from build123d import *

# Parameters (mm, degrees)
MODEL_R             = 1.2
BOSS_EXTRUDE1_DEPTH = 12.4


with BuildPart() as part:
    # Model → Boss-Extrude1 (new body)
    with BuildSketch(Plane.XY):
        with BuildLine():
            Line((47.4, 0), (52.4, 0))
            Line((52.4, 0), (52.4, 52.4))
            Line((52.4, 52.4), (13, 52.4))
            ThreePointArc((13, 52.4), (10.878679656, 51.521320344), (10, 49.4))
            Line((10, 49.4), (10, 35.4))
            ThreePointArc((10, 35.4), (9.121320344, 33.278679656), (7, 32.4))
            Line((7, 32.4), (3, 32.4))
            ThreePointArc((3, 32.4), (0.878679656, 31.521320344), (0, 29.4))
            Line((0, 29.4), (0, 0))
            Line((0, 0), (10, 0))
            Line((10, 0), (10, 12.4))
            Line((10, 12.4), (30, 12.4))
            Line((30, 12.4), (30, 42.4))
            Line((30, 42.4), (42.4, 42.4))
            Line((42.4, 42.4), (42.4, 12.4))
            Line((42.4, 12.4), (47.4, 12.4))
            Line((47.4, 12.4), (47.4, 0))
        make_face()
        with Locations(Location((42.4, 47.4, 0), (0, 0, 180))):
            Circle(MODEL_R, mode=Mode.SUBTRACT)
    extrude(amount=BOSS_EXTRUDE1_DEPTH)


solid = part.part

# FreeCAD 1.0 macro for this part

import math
import FreeCAD as App
import Part
import Sketcher
from FreeCAD import Vector

doc = App.newDocument("Part")
body = doc.addObject("PartDesign::Body", "Body")

# Sketch on XY plane
sketch1 = body.newObject("Sketcher::SketchObject", "Sketch")
sketch1.AttachmentSupport = (doc.getObject("XY_Plane"), [""])
sketch1.MapMode = "FlatFace"
sketch1.addGeometry([
    Part.LineSegment(Vector(47.4, 0, 0), Vector(52.4, 0, 0)),  # 0
    Part.LineSegment(Vector(52.4, 0, 0), Vector(52.4, 52.4, 0)),  # 1
    Part.LineSegment(Vector(52.4, 52.4, 0), Vector(13, 52.4, 0)),  # 2
    Part.ArcOfCircle(Part.Circle(Vector(13, 49.4, 0), Vector(0, 0, 1), 3), math.radians(90), math.radians(180)),  # 3
    Part.LineSegment(Vector(10, 49.4, 0), Vector(10, 35.4, 0)),  # 4
    Part.ArcOfCircle(Part.Circle(Vector(7, 35.4, 0), Vector(0, 0, 1), 3), math.radians(-90), math.radians(0)),  # 5
    Part.LineSegment(Vector(7, 32.4, 0), Vector(3, 32.4, 0)),  # 6
    Part.ArcOfCircle(Part.Circle(Vector(3, 29.4, 0), Vector(0, 0, 1), 3), math.radians(90), math.radians(180)),  # 7
    Part.LineSegment(Vector(0, 29.4, 0), Vector(0, 0, 0)),  # 8
    Part.LineSegment(Vector(0, 0, 0), Vector(10, 0, 0)),  # 9
    Part.LineSegment(Vector(10, 0, 0), Vector(10, 12.4, 0)),  # 10
    Part.LineSegment(Vector(10, 12.4, 0), Vector(30, 12.4, 0)),  # 11
    Part.LineSegment(Vector(30, 12.4, 0), Vector(30, 42.4, 0)),  # 12
    Part.LineSegment(Vector(30, 42.4, 0), Vector(42.4, 42.4, 0)),  # 13
    Part.LineSegment(Vector(42.4, 42.4, 0), Vector(42.4, 12.4, 0)),  # 14
    Part.LineSegment(Vector(42.4, 12.4, 0), Vector(47.4, 12.4, 0)),  # 15
    Part.LineSegment(Vector(47.4, 12.4, 0), Vector(47.4, 0, 0)),  # 16
    Part.Circle(Vector(42.4, 47.4, 0), Vector(0, 0, 1), 1.2),  # 17
], False)
sketch1.addConstraint([
    Sketcher.Constraint("Coincident", 0, 2, 1, 1),
    Sketcher.Constraint("Coincident", 1, 2, 2, 1),
    Sketcher.Constraint("Tangent", 2, 2, 3, 1),
    Sketcher.Constraint("Tangent", 3, 2, 4, 1),
    Sketcher.Constraint("Tangent", 4, 2, 5, 2),
    Sketcher.Constraint("Tangent", 5, 1, 6, 1),
    Sketcher.Constraint("Tangent", 6, 2, 7, 1),
    Sketcher.Constraint("Tangent", 7, 2, 8, 1),
    Sketcher.Constraint("Coincident", 8, 2, 9, 1),
    Sketcher.Constraint("Coincident", 9, 2, 10, 1),
    Sketcher.Constraint("Coincident", 10, 2, 11, 1),
    Sketcher.Constraint("Coincident", 11, 2, 12, 1),
    Sketcher.Constraint("Coincident", 12, 2, 13, 1),
    Sketcher.Constraint("Coincident", 13, 2, 14, 1),
    Sketcher.Constraint("Coincident", 14, 2, 15, 1),
    Sketcher.Constraint("Coincident", 15, 2, 16, 1),
    Sketcher.Constraint("Coincident", 16, 2, 0, 1),
    Sketcher.Constraint("Horizontal", 0),
    Sketcher.Constraint("Vertical", 1),
    Sketcher.Constraint("Horizontal", 2),
    Sketcher.Constraint("Vertical", 4),
    Sketcher.Constraint("Horizontal", 6),
    Sketcher.Constraint("Vertical", 8),
    Sketcher.Constraint("Horizontal", 9),
    Sketcher.Constraint("Vertical", 10),
    Sketcher.Constraint("Horizontal", 11),
    Sketcher.Constraint("Vertical", 12),
    Sketcher.Constraint("Horizontal", 13),
    Sketcher.Constraint("Vertical", 14),
    Sketcher.Constraint("Horizontal", 15),
    Sketcher.Constraint("Vertical", 16),
    Sketcher.Constraint("Coincident", 8, 2, -1, 1),
    Sketcher.Constraint("Equal", 3, 5),
    Sketcher.Constraint("Equal", 5, 7),
    Sketcher.Constraint("PointOnObject", 0, 2, -1),
    Sketcher.Constraint("Horizontal", 11, 2, 14, 2),
    Sketcher.Constraint("Vertical", 4, 2, 9, 2),
    Sketcher.Constraint("Vertical", 17, 3, 13, 2),
    Sketcher.Constraint("Equal", 0, 15),
    Sketcher.Constraint("Equal", 13, 10),
    Sketcher.Constraint("Radius", 3, 3.0),
    Sketcher.Constraint("Diameter", 17, 2.4),
    Sketcher.Constraint("DistanceX", 0, 1, 0, 2, 5.0),
    Sketcher.Constraint("DistanceX", 6, 2, 6, 1, 4.0),
    Sketcher.Constraint("DistanceX", 11, 1, 11, 2, 20.0),
    Sketcher.Constraint("DistanceY", 4, 2, 4, 1, 14.0),
    Sketcher.Constraint("DistanceY", 12, 1, 12, 2, 30.0),
    Sketcher.Constraint("DistanceX", 2, 2, 2, 1, 39.4),
    Sketcher.Constraint("DistanceY", 1, 1, 1, 2, 52.4),
    Sketcher.Constraint("DistanceY", 17, 3, 3, 3, 2.0),
])
pad1 = body.newObject("PartDesign::Pad", "Pad")
pad1.Profile = sketch1
pad1.Length = 12.4

doc.recompute()
